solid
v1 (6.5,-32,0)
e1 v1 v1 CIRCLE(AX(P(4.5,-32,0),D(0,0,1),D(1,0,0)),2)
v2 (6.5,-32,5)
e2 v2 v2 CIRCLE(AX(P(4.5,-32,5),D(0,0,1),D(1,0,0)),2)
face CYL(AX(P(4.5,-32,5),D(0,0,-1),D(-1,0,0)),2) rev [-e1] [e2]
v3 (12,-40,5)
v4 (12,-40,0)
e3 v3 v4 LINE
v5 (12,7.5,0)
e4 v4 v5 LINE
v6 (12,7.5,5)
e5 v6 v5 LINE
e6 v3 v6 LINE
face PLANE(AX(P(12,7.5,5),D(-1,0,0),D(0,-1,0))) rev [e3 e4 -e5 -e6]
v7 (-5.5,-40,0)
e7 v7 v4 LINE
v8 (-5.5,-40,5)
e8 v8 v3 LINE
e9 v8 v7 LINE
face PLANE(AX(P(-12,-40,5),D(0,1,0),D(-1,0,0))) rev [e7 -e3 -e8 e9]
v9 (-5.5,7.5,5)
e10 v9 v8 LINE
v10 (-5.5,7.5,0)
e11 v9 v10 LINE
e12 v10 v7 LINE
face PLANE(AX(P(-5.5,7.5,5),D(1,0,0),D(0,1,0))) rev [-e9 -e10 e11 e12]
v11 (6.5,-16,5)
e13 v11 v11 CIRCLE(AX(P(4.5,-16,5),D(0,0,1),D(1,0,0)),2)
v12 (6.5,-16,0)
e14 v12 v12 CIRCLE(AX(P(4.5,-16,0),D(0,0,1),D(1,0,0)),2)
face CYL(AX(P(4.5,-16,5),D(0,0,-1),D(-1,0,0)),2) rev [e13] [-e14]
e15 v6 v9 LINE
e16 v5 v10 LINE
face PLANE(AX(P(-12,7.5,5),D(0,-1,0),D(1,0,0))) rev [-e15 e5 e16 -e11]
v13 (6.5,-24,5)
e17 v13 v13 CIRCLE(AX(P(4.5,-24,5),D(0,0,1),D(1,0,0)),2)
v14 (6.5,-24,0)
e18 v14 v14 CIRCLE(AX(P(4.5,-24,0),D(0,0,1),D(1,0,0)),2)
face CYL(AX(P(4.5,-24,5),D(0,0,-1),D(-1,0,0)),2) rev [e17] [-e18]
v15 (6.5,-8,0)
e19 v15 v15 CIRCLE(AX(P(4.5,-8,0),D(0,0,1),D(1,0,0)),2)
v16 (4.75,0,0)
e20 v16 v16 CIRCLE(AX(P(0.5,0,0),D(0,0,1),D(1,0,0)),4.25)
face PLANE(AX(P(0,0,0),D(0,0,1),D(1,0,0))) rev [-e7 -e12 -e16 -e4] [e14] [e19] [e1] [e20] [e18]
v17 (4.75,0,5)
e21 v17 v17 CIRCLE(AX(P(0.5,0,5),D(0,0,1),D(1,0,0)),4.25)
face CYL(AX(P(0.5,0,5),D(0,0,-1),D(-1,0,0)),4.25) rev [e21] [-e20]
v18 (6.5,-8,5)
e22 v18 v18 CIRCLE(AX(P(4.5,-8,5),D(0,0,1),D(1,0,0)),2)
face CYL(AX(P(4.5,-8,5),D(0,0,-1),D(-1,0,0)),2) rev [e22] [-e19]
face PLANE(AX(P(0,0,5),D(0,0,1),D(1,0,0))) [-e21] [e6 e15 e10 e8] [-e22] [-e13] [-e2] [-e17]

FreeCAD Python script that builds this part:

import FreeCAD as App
import Part
import Sketcher
from FreeCAD import Vector


def add_polygon(sketch, points):
    """Adds a closed chain of lines whose ends are joined by coincident constraints."""
    first, n = sketch.GeometryCount, len(points)
    for a, b in zip(points, points[1:] + points[:1]):
        sketch.addGeometry(Part.LineSegment(App.Vector(*a, 0), App.Vector(*b, 0)), False)
    for i in range(n):
        sketch.addConstraint(Sketcher.Constraint("Coincident", first + i, 2, first + (i + 1) % n, 1))

doc = App.newDocument("Part")
body = doc.addObject("PartDesign::Body", "Body")

# Sketch on XY plane
sketch1 = body.newObject("Sketcher::SketchObject", "Sketch")
sketch1.AttachmentSupport = (doc.getObject("XY_Plane"), [""])
sketch1.MapMode = "FlatFace"
add_polygon(sketch1, [(-12, 7.5), (-12, -40), (12, -40), (12, 7.5)])  # lines 0-3
sketch1.addGeometry(Part.Circle(Vector(4.5, -32, 0), Vector(0, 0, 1), 2), False)  # 4
sketch1.addGeometry(Part.Circle(Vector(4.5, -24, 0), Vector(0, 0, 1), 2), False)  # 5
sketch1.addGeometry(Part.Circle(Vector(4.5, -16, 0), Vector(0, 0, 1), 2), False)  # 6
sketch1.addGeometry(Part.Circle(Vector(0.5, 0, 0), Vector(0, 0, 1), 4.2), False)  # 7
sketch1.addGeometry(Part.Circle(Vector(4.5, -8, 0), Vector(0, 0, 1), 2), False)  # 8
sketch1.addConstraint([
    Sketcher.Constraint("Vertical", 0),
    Sketcher.Constraint("Horizontal", 1),
    Sketcher.Constraint("Vertical", 2),
    Sketcher.Constraint("Horizontal", 3),
    Sketcher.Constraint("Equal", 4, 5),
    Sketcher.Constraint("Equal", 5, 6),
    Sketcher.Constraint("Equal", 6, 8),
    Sketcher.Constraint("PointOnObject", 7, 3, -1),
    Sketcher.Constraint("Vertical", 4, 3, 5, 3),
    Sketcher.Constraint("Vertical", 5, 3, 6, 3),
    Sketcher.Constraint("Vertical", 6, 3, 8, 3),
    Sketcher.Constraint("Diameter", 4, 4.0),
    Sketcher.Constraint("Diameter", 7, 8.5),
    Sketcher.Constraint("DistanceX", 1, 1, 1, 2, 24.0),
    Sketcher.Constraint("DistanceY", 0, 2, 0, 1, 47.5),
    Sketcher.Constraint("DistanceY", 4, 3, -1, 1, 32.0),
    Sketcher.Constraint("DistanceY", 5, 3, -1, 1, 24.0),
    Sketcher.Constraint("DistanceY", 6, 3, -1, 1, 16.0),
    Sketcher.Constraint("DistanceY", 8, 3, -1, 1, 8.0),
    Sketcher.Constraint("DistanceX", 0, 2, -1, 1, 12.0),
    Sketcher.Constraint("DistanceY", 0, 2, -1, 1, 40.0),
    Sketcher.Constraint("DistanceX", 7, 3, 6, 3, 4.0),
    Sketcher.Constraint("DistanceX", -1, 1, 4, 3, 4.5),
])
pad1 = body.newObject("PartDesign::Pad", "Pad")
pad1.Profile = sketch1
pad1.Length = 5

# Sketch on XY plane
sketch2 = body.newObject("Sketcher::SketchObject", "Sketch001")
sketch2.AttachmentSupport = (doc.getObject("XY_Plane"), [""])
sketch2.MapMode = "FlatFace"
add_polygon(sketch2, [(-12, 8), (-6, 8), (-6, -44), (-12, -44)])  # lines 0-3
sketch2.addConstraint([
    Sketcher.Constraint("Horizontal", 0),
    Sketcher.Constraint("Vertical", 1),
    Sketcher.Constraint("Horizontal", 2),
    Sketcher.Constraint("Vertical", 3),
    Sketcher.Constraint("DistanceX", 0, 1, 0, 2, 6.5),
    Sketcher.Constraint("DistanceX", 2, 2, -1, 1, 12.0),
    Sketcher.Constraint("DistanceY", -1, 1, 0, 2, 7.5),
    Sketcher.Constraint("DistanceY", 1, 2, 1, 1, 51.193977),
])
pocket1 = body.newObject("PartDesign::Pocket", "Pocket")
pocket1.Profile = sketch2
pocket1.Length = 5
pocket1.Reversed = True

doc.recompute()
